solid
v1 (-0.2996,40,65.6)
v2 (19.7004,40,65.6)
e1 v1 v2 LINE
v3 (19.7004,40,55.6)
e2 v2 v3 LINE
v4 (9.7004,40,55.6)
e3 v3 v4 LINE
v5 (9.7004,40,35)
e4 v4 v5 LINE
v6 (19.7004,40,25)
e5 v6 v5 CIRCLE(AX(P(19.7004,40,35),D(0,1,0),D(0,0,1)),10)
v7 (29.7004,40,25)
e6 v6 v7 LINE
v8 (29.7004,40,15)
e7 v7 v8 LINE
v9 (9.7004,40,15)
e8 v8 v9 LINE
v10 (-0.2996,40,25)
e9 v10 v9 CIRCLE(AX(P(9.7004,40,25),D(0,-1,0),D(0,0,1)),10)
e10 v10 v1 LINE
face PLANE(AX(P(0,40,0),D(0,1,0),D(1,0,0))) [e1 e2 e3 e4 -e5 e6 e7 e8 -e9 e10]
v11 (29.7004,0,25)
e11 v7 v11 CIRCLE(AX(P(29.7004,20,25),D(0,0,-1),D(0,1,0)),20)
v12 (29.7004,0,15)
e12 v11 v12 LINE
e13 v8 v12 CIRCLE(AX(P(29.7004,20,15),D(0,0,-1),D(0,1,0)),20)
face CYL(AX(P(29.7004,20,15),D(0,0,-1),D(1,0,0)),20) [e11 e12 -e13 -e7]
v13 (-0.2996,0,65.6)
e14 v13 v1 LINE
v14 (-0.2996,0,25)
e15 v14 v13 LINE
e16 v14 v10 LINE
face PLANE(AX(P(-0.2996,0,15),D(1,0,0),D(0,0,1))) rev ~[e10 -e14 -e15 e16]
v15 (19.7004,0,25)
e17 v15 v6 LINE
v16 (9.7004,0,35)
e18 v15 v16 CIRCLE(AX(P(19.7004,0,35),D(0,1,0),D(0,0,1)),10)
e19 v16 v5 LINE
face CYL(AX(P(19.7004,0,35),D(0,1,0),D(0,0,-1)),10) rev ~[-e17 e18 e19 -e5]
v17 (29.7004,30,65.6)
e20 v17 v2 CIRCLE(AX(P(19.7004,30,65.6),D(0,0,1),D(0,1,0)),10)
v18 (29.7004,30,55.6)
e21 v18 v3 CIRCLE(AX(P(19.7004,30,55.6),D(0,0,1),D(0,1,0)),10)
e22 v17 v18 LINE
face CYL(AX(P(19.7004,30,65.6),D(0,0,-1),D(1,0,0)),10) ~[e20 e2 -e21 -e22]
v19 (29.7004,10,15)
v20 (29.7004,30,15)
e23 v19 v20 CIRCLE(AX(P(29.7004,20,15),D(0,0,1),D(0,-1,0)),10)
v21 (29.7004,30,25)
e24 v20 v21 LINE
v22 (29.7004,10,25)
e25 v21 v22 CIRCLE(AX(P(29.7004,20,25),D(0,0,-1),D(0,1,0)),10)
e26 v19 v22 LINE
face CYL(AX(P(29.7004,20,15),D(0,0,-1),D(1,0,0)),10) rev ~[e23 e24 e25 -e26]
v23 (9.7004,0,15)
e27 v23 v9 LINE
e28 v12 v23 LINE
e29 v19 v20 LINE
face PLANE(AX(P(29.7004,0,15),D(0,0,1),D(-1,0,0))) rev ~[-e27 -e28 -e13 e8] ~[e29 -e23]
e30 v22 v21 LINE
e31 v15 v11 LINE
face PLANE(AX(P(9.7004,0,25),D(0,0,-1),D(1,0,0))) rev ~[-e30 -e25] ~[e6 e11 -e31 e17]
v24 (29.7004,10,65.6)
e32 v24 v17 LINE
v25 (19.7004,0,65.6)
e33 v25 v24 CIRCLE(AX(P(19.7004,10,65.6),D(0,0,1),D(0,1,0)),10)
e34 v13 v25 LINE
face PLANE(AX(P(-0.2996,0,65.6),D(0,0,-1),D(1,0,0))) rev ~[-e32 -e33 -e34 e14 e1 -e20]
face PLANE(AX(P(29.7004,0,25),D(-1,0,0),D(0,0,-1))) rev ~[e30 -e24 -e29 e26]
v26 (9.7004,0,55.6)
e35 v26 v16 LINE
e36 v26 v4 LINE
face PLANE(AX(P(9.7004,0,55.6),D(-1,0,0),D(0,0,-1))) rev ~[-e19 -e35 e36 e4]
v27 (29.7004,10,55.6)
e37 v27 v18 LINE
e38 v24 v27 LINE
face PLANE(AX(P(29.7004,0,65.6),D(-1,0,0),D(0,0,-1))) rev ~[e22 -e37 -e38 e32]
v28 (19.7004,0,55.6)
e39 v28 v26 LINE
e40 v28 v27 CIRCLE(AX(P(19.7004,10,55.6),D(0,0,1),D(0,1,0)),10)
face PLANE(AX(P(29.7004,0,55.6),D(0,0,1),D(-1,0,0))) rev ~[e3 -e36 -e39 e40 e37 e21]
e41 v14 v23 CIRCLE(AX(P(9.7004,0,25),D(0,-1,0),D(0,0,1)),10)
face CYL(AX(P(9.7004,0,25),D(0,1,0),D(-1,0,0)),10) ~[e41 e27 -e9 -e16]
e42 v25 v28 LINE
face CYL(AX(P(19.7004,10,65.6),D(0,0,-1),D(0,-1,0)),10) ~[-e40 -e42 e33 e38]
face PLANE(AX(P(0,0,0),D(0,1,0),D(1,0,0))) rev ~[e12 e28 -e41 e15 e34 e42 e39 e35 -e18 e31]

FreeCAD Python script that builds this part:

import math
import FreeCAD as App
import Part
import Sketcher


def edges_at(feature, points):
    """Names of the edges that pass closest to the given points."""
    edges = feature.Shape.Edges
    near = lambda p: min(range(len(edges)), key=lambda i: edges[i].distToShape(Part.Vertex(*p))[0])
    return sorted({f"Edge{near(p) + 1}" for p in points})

doc = App.newDocument("Part")
body = doc.addObject("PartDesign::Body", "Body")

sketch1 = doc.addObject("Sketcher::SketchObject", "Sketch")
body.addObject(sketch1)
sketch1.AttachmentSupport = (doc.XZ_Plane, [""])
sketch1.MapMode = "FlatFace"
sketch1.addGeometry([
    Part.LineSegment(App.Vector(-0.2996, 65.6, 0), App.Vector(29.7004, 65.6, 0)),
    Part.LineSegment(App.Vector(29.7004, 65.6, 0), App.Vector(29.7004, 55.6, 0)),
    Part.LineSegment(App.Vector(29.7004, 55.6, 0), App.Vector(9.7004, 55.6, 0)),
    Part.LineSegment(App.Vector(9.7004, 55.6, 0), App.Vector(9.7004, 25, 0)),
    Part.LineSegment(App.Vector(9.7004, 25, 0), App.Vector(29.7004, 25, 0)),
    Part.LineSegment(App.Vector(29.7004, 25, 0), App.Vector(29.7004, 15, 0)),
    Part.LineSegment(App.Vector(29.7004, 15, 0), App.Vector(-0.2996, 15, 0)),
    Part.LineSegment(App.Vector(-0.2996, 15, 0), App.Vector(-0.2996, 65.6, 0)),
], False)
sketch1.addConstraint([
    Sketcher.Constraint("Coincident", 0, 2, 1, 1),
    Sketcher.Constraint("Coincident", 1, 2, 2, 1),
    Sketcher.Constraint("Coincident", 2, 2, 3, 1),
    Sketcher.Constraint("Coincident", 3, 2, 4, 1),
    Sketcher.Constraint("Coincident", 4, 2, 5, 1),
    Sketcher.Constraint("Coincident", 5, 2, 6, 1),
    Sketcher.Constraint("Coincident", 6, 2, 7, 1),
    Sketcher.Constraint("Coincident", 7, 2, 0, 1),
    Sketcher.Constraint("Horizontal", 0),
    Sketcher.Constraint("Vertical", 1),
    Sketcher.Constraint("Horizontal", 2),
    Sketcher.Constraint("Vertical", 3),
    Sketcher.Constraint("Horizontal", 4),
    Sketcher.Constraint("Vertical", 5),
    Sketcher.Constraint("Horizontal", 6),
    Sketcher.Constraint("Vertical", 7),
    Sketcher.Constraint("Vertical", 1, 2, 4, 2),
    Sketcher.Constraint("Equal", 1, 5),
    Sketcher.Constraint("DistanceX", 0, 1, 0, 2, 30.0),
    Sketcher.Constraint("DistanceY", 1, 2, 1, 1, 10.0),
    Sketcher.Constraint("DistanceY", 7, 1, 7, 2, 50.6),
    Sketcher.Constraint("DistanceX", 6, 2, 3, 2, 10.0),
    Sketcher.Constraint("DistanceY", -1, 1, 3, 2, 25.0),
    Sketcher.Constraint("DistanceX", -1, 1, 0, 2, 29.7004),
])
pad1 = doc.addObject("PartDesign::Pad", "Pad")
body.addObject(pad1)
pad1.Profile = sketch1
pad1.Length = 40
pad1.Reversed = True

sketch2 = doc.addObject("Sketcher::SketchObject", "Sketch001")
body.addObject(sketch2)
sketch2.AttachmentSupport = (doc.XY_Plane, [""])
sketch2.MapMode = "FlatFace"
sketch2.AttachmentOffset = App.Placement(App.Vector(0, 0, 15), App.Rotation())
sketch2.addGeometry([
    Part.ArcOfCircle(Part.Circle(App.Vector(29.7004, 20, 0), App.Vector(0, 0, 1), 20), math.radians(-90), math.radians(90)),
    Part.LineSegment(App.Vector(29.7004, 0, 0), App.Vector(29.7004, 10, 0)),
    Part.ArcOfCircle(Part.Circle(App.Vector(29.7004, 20, 0), App.Vector(0, 0, 1), 10), math.radians(-90), math.radians(90)),
    Part.LineSegment(App.Vector(29.7004, 30, 0), App.Vector(29.7004, 40, 0)),
], False)
sketch2.addConstraint([
    Sketcher.Constraint("Coincident", 0, 1, 1, 1),
    Sketcher.Constraint("Coincident", 1, 2, 2, 1),
    Sketcher.Constraint("Coincident", 2, 2, 3, 1),
    Sketcher.Constraint("Coincident", 3, 2, 0, 2),
    Sketcher.Constraint("Vertical", 1),
    Sketcher.Constraint("Vertical", 3),
    Sketcher.Constraint("Coincident", 2, 3, 0, 3),
    Sketcher.Constraint("PointOnObject", 0, 1, -1),
    Sketcher.Constraint("Vertical", 2, 3, 0, 1),
    Sketcher.Constraint("Vertical", 1, 2, 2, 2),
    Sketcher.Constraint("Radius", 0, 20.0),
    Sketcher.Constraint("Radius", 2, 10.0),
    Sketcher.Constraint("DistanceX", -1, 1, 0, 3, 29.7004),
])
pad2 = doc.addObject("PartDesign::Pad", "Pad001")
body.addObject(pad2)
pad2.Profile = sketch2
pad2.Length = 10

sketch3 = doc.addObject("Sketcher::SketchObject", "Sketch002")
body.addObject(sketch3)
sketch3.AttachmentSupport = (doc.XY_Plane, [""])
sketch3.MapMode = "FlatFace"
sketch3.AttachmentOffset = App.Placement(App.Vector(0, 0, 15), App.Rotation())
sketch3.addGeometry([
    Part.ArcOfCircle(Part.Circle(App.Vector(29.7004, 20, 0), App.Vector(0, 0, 1), 10), math.radians(-90), math.radians(90)),
    Part.LineSegment(App.Vector(29.7004, 10, 0), App.Vector(29.7004, 30, 0)),
], False)
sketch3.addConstraint([
    Sketcher.Constraint("Coincident", 0, 1, 1, 1),
    Sketcher.Constraint("Coincident", 1, 2, 0, 2),
    Sketcher.Constraint("Vertical", 1),
    Sketcher.Constraint("Radius", 0, 10.0),
    Sketcher.Constraint("DistanceY", -1, 1, 0, 3, 20.0),
    Sketcher.Constraint("DistanceX", -1, 1, 0, 3, 29.7004),
    Sketcher.Constraint("DistanceX", -1, 1, 0, 1, 29.7004),
])
pocket1 = doc.addObject("PartDesign::Pocket", "Pocket")
body.addObject(pocket1)
pocket1.Profile = sketch3
pocket1.Length = 10
pocket1.Reversed = True
doc.recompute()

fillet = doc.addObject("PartDesign::Fillet", "Fillet")
body.addObject(fillet)
fillet.Base = (pocket1, edges_at(pocket1, [(-0.3, 20, 15)]))
fillet.Radius = 10
doc.recompute()

fillet2 = doc.addObject("PartDesign::Fillet", "Fillet001")
body.addObject(fillet2)
fillet2.Base = (fillet, edges_at(fillet, [(9.7, 20, 25)]))
fillet2.Radius = 10
doc.recompute()

fillet3 = doc.addObject("PartDesign::Fillet", "Fillet002")
body.addObject(fillet3)
fillet3.Base = (fillet2, edges_at(fillet2, [(29.7, 0, 60.6), (29.7, 40, 60.6)]))
fillet3.Radius = 10

doc.recompute()
